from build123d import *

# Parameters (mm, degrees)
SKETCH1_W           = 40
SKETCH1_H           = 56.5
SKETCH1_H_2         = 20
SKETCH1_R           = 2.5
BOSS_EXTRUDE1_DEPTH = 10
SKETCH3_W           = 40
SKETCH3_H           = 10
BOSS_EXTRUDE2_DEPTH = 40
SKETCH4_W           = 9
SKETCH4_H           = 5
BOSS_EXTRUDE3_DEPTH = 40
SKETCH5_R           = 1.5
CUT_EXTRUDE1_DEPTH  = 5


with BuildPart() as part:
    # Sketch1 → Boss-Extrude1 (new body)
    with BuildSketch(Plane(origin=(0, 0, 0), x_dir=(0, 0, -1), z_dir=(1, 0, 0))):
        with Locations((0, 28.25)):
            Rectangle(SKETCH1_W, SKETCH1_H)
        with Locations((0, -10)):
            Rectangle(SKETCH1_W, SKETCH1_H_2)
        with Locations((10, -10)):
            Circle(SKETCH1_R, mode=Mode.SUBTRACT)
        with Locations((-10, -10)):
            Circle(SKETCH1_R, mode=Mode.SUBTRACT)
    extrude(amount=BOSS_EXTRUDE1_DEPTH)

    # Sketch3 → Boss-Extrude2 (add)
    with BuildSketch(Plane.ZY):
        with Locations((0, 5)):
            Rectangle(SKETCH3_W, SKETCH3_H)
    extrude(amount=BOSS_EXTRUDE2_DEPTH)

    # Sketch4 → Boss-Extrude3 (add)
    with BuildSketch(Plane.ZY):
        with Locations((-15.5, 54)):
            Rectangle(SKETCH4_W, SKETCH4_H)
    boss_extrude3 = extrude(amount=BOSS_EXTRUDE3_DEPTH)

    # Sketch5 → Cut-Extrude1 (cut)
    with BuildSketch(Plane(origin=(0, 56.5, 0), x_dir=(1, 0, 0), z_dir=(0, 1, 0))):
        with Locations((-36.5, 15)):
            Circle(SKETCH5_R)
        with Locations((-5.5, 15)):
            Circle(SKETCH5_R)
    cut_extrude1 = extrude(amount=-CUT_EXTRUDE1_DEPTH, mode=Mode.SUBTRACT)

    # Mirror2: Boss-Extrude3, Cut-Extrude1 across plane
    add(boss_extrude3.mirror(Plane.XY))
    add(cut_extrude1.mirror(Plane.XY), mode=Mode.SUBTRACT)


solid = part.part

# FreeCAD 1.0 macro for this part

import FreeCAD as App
import Part
import Sketcher

V = App.Vector
Q = App.Units.Quantity


def add_polygon(sketch, points):
    """Adds a closed chain of lines whose ends are joined by coincident constraints."""
    first, n = sketch.GeometryCount, len(points)
    for a, b in zip(points, points[1:] + points[:1]):
        sketch.addGeometry(Part.LineSegment(App.Vector(*a, 0), App.Vector(*b, 0)), False)
    for i in range(n):
        sketch.addConstraint(Sketcher.Constraint("Coincident", first + i, 2, first + (i + 1) % n, 1))

doc = App.newDocument("Part")
body = doc.addObject("PartDesign::Body", "Body")

# Sketch on YZ plane
sketch1 = body.newObject("Sketcher::SketchObject", "Sketch")
sketch1.AttachmentSupport = (doc.getObject("YZ_Plane"), [""])
sketch1.MapMode = "FlatFace"
add_polygon(sketch1, [(56.5, 20), (-20, 20), (-20, -20), (56.5, -20)])  # lines 0-3
sketch1.addGeometry(Part.Circle(V(-10, 10, 0), V(0, 0, 1), 2.5), False)  # 4
sketch1.addGeometry(Part.Circle(V(-10, -10, 0), V(0, 0, 1), 2.5), False)  # 5
sketch1.addConstraint(Sketcher.Constraint("Horizontal", 0))
sketch1.addConstraint(Sketcher.Constraint("Vertical", 1))
sketch1.addConstraint(Sketcher.Constraint("Horizontal", 2))
sketch1.addConstraint(Sketcher.Constraint("Vertical", 3))
sketch1.addConstraint(Sketcher.Constraint("Equal", 4, 5))
sketch1.addConstraint(Sketcher.Constraint("Symmetric", 4, 3, 5, 3, -1))
sketch1.addConstraint(Sketcher.Constraint("Diameter", 4, Q("5 mm")))
sketch1.addConstraint(Sketcher.Constraint("DistanceY", 1, 2, 1, 1, Q("40 mm")))
sketch1.addConstraint(Sketcher.Constraint("DistanceX", 0, 2, 0, 1, Q("76.5 mm")))
sketch1.addConstraint(Sketcher.Constraint("DistanceX", 4, 3, -1, 1, Q("10 mm")))
sketch1.addConstraint(Sketcher.Constraint("DistanceY", -1, 1, 4, 3, Q("10 mm")))
sketch1.addConstraint(Sketcher.Constraint("DistanceX", 0, 2, -1, 1, Q("20 mm")))
sketch1.addConstraint(Sketcher.Constraint("DistanceY", -1, 1, 0, 2, Q("20 mm")))
pad1 = body.newObject("PartDesign::Pad", "Pad")
pad1.Profile = sketch1
pad1.Length = 10

# Sketch on YZ plane
sketch2 = body.newObject("Sketcher::SketchObject", "Sketch001")
sketch2.AttachmentSupport = (doc.getObject("YZ_Plane"), [""])
sketch2.MapMode = "FlatFace"
add_polygon(sketch2, [(10, -20), (0, -20), (0, 20), (10, 20)])  # lines 0-3
sketch2.addConstraint(Sketcher.Constraint("Horizontal", 0))
sketch2.addConstraint(Sketcher.Constraint("Vertical", 1))
sketch2.addConstraint(Sketcher.Constraint("Horizontal", 2))
sketch2.addConstraint(Sketcher.Constraint("Vertical", 3))
sketch2.addConstraint(Sketcher.Constraint("Symmetric", 0, 2, 1, 2, -1, 1))
sketch2.addConstraint(Sketcher.Constraint("DistanceX", 0, 2, 0, 1, Q("10 mm")))
sketch2.addConstraint(Sketcher.Constraint("DistanceY", 1, 1, 1, 2, Q("40 mm")))
pad2 = body.newObject("PartDesign::Pad", "Pad001")
pad2.Profile = sketch2
pad2.Length = 40
pad2.Reversed = True

# Sketch on YZ plane
sketch3 = body.newObject("Sketcher::SketchObject", "Sketch002")
sketch3.AttachmentSupport = (doc.getObject("YZ_Plane"), [""])
sketch3.MapMode = "FlatFace"
add_polygon(sketch3, [(56, -20), (52, -20), (52, -11), (56, -11)])  # lines 0-3
sketch3.addConstraint(Sketcher.Constraint("Horizontal", 0))
sketch3.addConstraint(Sketcher.Constraint("Vertical", 1))
sketch3.addConstraint(Sketcher.Constraint("Horizontal", 2))
sketch3.addConstraint(Sketcher.Constraint("Vertical", 3))
sketch3.addConstraint(Sketcher.Constraint("DistanceX", 0, 2, 0, 1, Q("5 mm")))
sketch3.addConstraint(Sketcher.Constraint("DistanceY", 1, 1, 1, 2, Q("9 mm")))
sketch3.addConstraint(Sketcher.Constraint("DistanceY", 0, 2, -1, 1, Q("20 mm")))
sketch3.addConstraint(Sketcher.Constraint("DistanceX", -1, 1, 0, 2, Q("51.5 mm")))
pad3 = body.newObject("PartDesign::Pad", "Pad002")
pad3.Profile = sketch3
pad3.Length = 40
pad3.Reversed = True

# Sketch on XZ plane
sketch4 = body.newObject("Sketcher::SketchObject", "Sketch003")
sketch4.AttachmentSupport = (doc.getObject("XZ_Plane"), [""])
sketch4.MapMode = "FlatFace"
sketch4.AttachmentOffset = App.Placement(V(0, 0, -56.5), App.Rotation())
sketch4.addGeometry(Part.Circle(V(-36.5, -15, 0), V(0, 0, 1), 1.5), False)
sketch4.addGeometry(Part.Circle(V(-5.5, -15, 0), V(0, 0, 1), 1.5), False)
sketch4.addConstraint(Sketcher.Constraint("Equal", 0, 1))
sketch4.addConstraint(Sketcher.Constraint("Horizontal", 0, 3, 1, 3))
sketch4.addConstraint(Sketcher.Constraint("Diameter", 0, Q("3 mm")))
sketch4.addConstraint(Sketcher.Constraint("DistanceY", 0, 3, -1, 1, Q("15 mm")))
sketch4.addConstraint(Sketcher.Constraint("DistanceX", 0, 3, 1, 3, Q("31 mm")))
sketch4.addConstraint(Sketcher.Constraint("DistanceX", 0, 3, -1, 1, Q("36.5 mm")))
pocket1 = body.newObject("PartDesign::Pocket", "Pocket")
pocket1.Profile = sketch4
pocket1.Length = 5
pocket1.Reversed = True
doc.recompute()

mirrored = body.newObject("PartDesign::Mirrored", "Mirrored")
mirrored.Originals = [pad3, pocket1]
mirrored.MirrorPlane = (doc.getObject("XY_Plane"), [""])
body.Tip = mirrored

doc.recompute()
